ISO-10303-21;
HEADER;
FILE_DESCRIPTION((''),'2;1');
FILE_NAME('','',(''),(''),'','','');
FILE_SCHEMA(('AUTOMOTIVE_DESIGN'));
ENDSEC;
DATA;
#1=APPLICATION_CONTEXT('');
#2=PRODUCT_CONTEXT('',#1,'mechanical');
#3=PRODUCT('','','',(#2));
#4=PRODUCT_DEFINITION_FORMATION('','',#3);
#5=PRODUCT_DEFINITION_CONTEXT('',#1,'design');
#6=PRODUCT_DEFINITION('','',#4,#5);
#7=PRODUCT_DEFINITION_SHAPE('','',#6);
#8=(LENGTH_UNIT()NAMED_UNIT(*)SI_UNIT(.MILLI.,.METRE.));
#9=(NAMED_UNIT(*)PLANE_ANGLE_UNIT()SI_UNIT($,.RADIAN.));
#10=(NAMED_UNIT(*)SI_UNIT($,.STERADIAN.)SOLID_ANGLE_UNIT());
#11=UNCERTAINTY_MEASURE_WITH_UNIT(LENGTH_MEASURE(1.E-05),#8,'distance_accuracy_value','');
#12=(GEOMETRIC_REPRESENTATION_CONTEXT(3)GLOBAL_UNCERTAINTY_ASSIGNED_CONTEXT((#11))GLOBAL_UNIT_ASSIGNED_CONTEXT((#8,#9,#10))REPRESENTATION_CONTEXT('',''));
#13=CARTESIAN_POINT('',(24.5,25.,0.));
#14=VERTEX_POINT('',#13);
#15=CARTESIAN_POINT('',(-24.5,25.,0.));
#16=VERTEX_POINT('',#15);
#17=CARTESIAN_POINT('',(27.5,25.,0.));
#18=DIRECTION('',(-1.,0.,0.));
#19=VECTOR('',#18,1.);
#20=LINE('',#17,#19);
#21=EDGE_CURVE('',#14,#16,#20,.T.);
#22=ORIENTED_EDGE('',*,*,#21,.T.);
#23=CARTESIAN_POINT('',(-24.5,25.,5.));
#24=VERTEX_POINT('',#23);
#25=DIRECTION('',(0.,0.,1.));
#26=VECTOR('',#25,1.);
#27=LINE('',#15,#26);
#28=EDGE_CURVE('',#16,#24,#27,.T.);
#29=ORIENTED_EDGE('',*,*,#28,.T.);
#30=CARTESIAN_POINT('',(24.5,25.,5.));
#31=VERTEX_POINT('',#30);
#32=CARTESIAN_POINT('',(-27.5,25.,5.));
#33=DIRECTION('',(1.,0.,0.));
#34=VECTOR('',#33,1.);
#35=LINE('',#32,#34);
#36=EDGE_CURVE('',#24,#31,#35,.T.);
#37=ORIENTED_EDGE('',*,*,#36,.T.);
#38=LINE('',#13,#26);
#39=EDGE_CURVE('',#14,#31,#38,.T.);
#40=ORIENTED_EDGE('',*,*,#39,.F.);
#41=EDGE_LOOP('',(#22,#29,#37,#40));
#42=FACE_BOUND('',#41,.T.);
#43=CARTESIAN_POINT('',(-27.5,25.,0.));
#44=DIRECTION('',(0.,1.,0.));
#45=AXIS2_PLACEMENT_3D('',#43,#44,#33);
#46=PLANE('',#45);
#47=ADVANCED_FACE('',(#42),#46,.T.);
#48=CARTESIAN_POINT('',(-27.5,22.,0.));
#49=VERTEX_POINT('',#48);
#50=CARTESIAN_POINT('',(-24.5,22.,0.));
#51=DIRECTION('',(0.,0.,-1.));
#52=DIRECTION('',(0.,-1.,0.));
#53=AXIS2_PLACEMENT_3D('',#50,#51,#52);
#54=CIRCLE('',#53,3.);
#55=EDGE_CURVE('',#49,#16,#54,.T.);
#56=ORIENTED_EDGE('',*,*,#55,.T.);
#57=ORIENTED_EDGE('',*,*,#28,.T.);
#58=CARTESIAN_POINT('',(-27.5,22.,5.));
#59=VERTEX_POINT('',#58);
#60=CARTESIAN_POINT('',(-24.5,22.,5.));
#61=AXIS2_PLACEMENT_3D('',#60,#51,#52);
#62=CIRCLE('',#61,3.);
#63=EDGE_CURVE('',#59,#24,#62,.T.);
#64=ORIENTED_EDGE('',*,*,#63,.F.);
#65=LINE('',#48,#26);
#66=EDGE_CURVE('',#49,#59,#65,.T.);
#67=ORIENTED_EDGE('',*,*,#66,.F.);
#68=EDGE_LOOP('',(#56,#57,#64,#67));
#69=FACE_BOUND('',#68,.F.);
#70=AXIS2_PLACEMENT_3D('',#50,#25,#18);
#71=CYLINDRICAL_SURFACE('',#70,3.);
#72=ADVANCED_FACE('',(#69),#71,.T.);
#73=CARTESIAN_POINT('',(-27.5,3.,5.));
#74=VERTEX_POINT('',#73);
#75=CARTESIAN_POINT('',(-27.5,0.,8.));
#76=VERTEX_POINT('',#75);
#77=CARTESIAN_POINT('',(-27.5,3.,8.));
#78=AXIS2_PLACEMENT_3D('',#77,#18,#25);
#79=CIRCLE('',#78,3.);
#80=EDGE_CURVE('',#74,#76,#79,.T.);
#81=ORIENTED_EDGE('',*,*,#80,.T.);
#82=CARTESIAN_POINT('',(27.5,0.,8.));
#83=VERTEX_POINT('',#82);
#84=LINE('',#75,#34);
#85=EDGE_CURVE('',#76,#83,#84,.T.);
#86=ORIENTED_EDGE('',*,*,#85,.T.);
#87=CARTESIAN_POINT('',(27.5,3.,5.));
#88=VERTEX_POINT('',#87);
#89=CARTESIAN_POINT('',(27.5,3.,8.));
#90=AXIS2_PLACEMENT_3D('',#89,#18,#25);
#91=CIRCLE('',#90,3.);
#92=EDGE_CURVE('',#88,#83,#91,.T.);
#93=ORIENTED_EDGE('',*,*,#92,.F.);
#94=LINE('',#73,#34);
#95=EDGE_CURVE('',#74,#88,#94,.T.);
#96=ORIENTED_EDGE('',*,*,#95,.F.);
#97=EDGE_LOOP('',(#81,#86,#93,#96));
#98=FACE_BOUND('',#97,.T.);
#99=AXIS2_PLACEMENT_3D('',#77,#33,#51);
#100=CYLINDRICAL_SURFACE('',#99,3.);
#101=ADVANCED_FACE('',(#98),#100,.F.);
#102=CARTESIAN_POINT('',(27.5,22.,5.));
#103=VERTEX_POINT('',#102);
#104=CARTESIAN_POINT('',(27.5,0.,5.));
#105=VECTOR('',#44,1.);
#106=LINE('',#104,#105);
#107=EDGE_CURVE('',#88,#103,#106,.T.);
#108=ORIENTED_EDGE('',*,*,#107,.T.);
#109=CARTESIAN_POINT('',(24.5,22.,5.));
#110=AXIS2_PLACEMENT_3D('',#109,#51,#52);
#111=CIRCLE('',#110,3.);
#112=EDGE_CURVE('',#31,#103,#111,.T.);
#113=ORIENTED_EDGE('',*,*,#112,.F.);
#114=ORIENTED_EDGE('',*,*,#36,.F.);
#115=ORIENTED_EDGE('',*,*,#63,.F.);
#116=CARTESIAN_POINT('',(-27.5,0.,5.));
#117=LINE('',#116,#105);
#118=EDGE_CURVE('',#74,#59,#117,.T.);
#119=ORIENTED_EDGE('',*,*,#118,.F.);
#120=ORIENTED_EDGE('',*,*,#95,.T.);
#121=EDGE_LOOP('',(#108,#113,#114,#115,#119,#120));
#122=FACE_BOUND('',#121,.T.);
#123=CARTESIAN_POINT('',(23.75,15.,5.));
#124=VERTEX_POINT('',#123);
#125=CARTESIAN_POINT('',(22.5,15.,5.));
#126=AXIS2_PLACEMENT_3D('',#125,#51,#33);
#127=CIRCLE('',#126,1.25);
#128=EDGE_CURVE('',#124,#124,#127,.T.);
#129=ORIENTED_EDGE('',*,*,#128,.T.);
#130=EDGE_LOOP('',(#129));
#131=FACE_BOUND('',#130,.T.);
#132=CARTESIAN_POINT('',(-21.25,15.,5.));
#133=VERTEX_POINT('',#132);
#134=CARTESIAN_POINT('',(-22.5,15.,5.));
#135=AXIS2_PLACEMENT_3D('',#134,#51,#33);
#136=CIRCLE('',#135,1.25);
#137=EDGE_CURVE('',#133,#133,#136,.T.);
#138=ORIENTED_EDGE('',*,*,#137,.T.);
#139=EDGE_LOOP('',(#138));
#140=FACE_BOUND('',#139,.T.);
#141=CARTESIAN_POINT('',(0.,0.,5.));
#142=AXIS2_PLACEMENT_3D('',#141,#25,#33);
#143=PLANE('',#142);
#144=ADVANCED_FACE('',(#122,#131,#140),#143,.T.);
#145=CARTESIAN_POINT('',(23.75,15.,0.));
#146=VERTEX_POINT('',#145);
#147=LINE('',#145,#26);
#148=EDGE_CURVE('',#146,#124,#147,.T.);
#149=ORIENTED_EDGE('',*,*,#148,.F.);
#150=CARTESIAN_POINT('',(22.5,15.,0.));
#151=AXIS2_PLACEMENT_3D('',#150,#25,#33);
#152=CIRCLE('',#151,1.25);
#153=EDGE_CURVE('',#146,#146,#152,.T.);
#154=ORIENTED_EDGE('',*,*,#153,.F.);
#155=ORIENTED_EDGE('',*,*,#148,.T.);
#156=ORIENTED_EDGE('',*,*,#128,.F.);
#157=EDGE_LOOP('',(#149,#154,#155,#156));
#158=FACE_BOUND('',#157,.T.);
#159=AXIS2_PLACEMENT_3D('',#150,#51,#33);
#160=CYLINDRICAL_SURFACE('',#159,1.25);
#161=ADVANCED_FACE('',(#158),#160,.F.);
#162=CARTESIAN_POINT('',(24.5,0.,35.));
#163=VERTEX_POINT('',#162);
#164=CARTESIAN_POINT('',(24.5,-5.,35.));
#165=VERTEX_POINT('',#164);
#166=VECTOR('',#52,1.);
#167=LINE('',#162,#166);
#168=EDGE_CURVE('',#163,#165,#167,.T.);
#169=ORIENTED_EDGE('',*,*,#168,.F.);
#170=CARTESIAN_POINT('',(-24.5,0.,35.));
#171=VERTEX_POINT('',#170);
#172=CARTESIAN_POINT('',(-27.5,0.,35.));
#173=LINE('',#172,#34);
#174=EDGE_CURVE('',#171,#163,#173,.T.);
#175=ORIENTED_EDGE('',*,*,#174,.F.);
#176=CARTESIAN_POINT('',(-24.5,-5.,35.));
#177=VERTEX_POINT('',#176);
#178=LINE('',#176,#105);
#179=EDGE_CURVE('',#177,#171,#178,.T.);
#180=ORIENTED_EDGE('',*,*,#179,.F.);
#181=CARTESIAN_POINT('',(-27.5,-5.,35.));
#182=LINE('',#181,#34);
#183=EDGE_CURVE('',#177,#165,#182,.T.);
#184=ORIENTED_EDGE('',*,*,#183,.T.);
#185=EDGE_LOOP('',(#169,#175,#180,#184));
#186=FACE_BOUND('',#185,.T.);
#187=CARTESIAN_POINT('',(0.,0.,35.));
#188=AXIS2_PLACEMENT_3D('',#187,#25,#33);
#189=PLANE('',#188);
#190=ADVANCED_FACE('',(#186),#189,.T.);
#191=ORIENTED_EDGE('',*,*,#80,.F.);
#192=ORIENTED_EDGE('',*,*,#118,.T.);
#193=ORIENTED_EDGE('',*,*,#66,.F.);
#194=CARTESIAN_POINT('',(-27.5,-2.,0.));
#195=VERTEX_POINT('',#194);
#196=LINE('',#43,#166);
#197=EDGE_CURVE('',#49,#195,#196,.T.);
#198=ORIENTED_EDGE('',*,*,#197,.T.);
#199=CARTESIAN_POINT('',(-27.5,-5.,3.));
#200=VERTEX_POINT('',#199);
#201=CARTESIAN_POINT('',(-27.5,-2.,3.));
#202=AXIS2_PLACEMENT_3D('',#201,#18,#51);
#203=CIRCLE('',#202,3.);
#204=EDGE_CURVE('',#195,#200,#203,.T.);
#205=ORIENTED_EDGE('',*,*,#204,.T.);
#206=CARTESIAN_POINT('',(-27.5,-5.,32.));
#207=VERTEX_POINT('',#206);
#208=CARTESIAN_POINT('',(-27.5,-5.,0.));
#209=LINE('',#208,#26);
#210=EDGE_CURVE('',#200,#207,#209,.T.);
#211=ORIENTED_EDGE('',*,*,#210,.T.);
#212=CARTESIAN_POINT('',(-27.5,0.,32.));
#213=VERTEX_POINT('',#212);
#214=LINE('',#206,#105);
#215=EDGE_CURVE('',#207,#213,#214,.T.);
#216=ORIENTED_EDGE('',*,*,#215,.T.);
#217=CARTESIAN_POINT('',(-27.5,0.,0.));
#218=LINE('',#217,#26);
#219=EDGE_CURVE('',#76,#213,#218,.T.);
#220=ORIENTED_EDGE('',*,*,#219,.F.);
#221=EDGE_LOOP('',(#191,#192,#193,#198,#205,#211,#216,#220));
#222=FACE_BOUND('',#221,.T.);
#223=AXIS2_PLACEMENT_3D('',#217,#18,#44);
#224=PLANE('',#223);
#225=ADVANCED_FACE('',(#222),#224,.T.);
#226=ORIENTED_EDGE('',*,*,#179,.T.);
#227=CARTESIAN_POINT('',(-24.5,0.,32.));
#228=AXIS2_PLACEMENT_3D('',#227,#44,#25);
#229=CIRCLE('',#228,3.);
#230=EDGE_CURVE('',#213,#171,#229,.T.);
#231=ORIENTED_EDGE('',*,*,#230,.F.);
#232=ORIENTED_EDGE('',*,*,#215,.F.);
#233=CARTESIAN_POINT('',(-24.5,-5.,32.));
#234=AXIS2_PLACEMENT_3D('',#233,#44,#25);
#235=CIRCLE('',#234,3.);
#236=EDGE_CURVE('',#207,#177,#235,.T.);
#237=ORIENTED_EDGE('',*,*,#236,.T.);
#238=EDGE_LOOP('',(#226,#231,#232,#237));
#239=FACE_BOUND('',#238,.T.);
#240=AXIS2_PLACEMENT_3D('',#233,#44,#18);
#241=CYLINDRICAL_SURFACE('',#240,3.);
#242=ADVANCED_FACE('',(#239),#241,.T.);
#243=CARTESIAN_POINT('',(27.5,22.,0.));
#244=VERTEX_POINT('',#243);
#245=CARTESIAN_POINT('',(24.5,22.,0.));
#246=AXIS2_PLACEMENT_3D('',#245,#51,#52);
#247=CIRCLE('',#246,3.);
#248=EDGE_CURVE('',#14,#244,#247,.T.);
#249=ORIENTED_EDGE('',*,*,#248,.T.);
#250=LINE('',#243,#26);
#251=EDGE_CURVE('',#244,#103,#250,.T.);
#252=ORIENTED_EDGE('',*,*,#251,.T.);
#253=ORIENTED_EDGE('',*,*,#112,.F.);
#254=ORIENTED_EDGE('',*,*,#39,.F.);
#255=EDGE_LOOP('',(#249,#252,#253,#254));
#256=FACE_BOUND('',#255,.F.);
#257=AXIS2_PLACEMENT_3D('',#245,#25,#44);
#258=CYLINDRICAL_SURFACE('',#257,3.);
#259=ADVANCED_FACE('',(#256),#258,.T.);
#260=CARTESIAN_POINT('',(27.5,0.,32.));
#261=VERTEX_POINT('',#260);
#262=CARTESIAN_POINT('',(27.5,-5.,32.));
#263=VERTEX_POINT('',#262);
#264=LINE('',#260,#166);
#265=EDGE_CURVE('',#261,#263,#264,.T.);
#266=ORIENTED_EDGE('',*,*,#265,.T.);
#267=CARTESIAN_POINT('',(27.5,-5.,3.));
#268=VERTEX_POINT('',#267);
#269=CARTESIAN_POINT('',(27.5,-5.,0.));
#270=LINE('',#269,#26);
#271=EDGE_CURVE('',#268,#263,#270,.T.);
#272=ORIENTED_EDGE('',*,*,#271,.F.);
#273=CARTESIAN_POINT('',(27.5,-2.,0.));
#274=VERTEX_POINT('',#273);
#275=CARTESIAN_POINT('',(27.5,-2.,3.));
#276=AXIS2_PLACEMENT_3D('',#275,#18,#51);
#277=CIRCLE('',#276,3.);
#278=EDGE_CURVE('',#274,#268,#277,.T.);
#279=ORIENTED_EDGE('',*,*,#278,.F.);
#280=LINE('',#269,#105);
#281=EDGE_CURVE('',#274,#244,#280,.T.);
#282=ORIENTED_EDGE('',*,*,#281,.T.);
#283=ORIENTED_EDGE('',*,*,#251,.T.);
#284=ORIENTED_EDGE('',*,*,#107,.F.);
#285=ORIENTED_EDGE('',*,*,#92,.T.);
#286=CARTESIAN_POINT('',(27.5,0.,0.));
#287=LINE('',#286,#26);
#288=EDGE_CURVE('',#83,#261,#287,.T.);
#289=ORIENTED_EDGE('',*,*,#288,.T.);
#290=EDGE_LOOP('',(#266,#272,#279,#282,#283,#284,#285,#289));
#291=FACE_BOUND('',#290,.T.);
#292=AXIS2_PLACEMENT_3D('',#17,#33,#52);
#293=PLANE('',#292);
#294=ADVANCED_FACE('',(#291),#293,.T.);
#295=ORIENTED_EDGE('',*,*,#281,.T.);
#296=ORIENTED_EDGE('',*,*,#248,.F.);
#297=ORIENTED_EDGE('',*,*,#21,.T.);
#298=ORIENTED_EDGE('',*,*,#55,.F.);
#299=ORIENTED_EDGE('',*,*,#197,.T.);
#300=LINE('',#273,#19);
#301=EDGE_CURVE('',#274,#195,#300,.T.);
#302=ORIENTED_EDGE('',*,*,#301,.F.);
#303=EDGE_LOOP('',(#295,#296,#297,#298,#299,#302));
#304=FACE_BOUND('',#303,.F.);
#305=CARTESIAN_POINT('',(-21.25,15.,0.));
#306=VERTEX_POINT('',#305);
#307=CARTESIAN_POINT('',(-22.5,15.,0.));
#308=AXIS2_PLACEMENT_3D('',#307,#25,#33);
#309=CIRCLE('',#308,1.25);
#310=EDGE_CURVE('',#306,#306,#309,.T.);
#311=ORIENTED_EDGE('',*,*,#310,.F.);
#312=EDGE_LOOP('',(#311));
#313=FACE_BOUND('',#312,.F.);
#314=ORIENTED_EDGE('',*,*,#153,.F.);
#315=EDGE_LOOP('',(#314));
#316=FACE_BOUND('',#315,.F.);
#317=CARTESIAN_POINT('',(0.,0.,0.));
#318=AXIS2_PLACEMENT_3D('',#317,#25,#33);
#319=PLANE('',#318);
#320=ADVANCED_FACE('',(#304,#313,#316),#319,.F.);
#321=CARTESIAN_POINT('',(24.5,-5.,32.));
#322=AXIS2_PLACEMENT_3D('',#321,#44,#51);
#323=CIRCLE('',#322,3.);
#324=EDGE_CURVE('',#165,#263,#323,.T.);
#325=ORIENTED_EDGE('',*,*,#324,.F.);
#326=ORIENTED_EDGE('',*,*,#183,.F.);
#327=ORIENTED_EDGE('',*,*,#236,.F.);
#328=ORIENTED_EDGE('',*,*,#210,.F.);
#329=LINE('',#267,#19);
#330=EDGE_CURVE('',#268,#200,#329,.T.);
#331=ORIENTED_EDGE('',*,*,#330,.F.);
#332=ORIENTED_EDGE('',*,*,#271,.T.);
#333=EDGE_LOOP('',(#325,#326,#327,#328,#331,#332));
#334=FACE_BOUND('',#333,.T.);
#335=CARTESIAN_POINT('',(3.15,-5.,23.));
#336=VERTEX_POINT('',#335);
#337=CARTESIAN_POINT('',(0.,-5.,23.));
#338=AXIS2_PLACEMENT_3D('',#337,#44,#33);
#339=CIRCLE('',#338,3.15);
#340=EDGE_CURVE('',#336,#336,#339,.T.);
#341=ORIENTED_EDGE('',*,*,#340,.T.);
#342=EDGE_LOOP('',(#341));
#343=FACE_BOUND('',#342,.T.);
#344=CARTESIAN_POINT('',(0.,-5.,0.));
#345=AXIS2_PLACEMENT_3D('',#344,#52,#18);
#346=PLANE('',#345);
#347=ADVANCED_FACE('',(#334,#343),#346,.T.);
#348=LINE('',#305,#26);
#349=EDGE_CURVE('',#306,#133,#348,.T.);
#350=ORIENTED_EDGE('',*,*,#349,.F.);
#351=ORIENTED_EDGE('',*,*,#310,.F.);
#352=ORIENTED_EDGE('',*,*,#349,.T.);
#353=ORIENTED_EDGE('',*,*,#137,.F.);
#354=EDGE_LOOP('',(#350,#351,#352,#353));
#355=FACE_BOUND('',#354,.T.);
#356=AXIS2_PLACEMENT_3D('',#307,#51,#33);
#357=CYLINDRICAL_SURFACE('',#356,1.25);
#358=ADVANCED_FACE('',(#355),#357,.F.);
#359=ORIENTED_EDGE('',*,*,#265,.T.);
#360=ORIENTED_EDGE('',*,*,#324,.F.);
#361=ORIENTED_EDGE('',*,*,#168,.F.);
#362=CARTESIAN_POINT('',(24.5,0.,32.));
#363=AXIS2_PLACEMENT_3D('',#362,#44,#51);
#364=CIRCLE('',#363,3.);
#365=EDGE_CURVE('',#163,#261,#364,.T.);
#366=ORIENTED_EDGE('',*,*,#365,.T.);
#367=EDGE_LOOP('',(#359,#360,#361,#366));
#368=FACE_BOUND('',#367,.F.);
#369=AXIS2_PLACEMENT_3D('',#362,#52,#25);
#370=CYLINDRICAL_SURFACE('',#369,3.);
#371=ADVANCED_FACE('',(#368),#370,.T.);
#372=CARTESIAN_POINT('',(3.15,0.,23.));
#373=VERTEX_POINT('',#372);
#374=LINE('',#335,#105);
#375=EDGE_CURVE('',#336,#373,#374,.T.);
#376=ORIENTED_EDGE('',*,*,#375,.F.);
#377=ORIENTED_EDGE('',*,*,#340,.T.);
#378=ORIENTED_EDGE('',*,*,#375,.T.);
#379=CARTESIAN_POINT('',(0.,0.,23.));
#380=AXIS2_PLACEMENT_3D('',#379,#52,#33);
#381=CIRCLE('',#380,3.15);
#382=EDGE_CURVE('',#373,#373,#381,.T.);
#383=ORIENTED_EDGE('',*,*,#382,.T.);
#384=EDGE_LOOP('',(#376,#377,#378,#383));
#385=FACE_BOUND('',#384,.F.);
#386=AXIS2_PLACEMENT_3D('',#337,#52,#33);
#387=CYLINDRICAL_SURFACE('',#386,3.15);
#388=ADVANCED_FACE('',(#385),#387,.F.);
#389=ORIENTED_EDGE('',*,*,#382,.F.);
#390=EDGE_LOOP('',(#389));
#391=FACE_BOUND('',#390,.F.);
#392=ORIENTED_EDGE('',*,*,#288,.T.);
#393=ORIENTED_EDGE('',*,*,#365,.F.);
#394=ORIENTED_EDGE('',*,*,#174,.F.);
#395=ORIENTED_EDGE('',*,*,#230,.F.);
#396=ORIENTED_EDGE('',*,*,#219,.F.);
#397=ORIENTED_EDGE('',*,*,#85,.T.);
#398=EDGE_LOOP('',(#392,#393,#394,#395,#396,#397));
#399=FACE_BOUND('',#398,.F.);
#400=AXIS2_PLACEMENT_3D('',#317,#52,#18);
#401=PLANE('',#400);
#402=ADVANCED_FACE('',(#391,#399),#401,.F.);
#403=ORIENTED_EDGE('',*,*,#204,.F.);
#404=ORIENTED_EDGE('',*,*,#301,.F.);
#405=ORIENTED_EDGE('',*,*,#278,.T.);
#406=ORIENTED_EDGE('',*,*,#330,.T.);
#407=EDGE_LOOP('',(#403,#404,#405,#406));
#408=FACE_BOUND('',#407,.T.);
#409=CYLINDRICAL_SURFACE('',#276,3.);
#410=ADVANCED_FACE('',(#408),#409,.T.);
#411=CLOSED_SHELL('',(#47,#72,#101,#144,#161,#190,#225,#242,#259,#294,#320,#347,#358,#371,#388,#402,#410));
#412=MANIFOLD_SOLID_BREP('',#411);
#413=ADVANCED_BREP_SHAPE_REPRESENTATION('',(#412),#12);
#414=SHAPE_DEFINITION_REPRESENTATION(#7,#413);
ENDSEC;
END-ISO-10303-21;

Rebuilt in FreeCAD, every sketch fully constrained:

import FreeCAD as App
import Part
import Sketcher

V = App.Vector


def edges_at(feature, points):
    """Names of the edges that pass closest to the given points."""
    edges = feature.Shape.Edges
    near = lambda p: min(range(len(edges)), key=lambda i: edges[i].distToShape(Part.Vertex(*p))[0])
    return sorted({f"Edge{near(p) + 1}" for p in points})

doc = App.newDocument("Part")
body = doc.addObject("PartDesign::Body", "Body")

sketch1 = body.newObject("Sketcher::SketchObject", "Sketch")
sketch1.AttachmentSupport = (doc.getObject("XY_Plane"), [""])
sketch1.MapMode = "FlatFace"
sketch1.addGeometry(Part.LineSegment(V(-27.5, 25, 0), V(-27.5, 0, 0)), False)
sketch1.addGeometry(Part.LineSegment(V(-27.5, 0, 0), V(27.5, 0, 0)), False)
sketch1.addGeometry(Part.LineSegment(V(27.5, 0, 0), V(27.5, 25, 0)), False)
sketch1.addGeometry(Part.LineSegment(V(27.5, 25, 0), V(-27.5, 25, 0)), False)
sketch1.addGeometry(Part.Circle(V(-22.5, 15, 0), V(0, 0, 1), 1.2), False)
sketch1.addGeometry(Part.Circle(V(22.5, 15, 0), V(0, 0, 1), 1.2), False)
sketch1.addConstraint(Sketcher.Constraint("Coincident", 0, 2, 1, 1))
sketch1.addConstraint(Sketcher.Constraint("Coincident", 1, 2, 2, 1))
sketch1.addConstraint(Sketcher.Constraint("Coincident", 2, 2, 3, 1))
sketch1.addConstraint(Sketcher.Constraint("Coincident", 3, 2, 0, 1))
sketch1.addConstraint(Sketcher.Constraint("Vertical", 0))
sketch1.addConstraint(Sketcher.Constraint("Horizontal", 1))
sketch1.addConstraint(Sketcher.Constraint("Vertical", 2))
sketch1.addConstraint(Sketcher.Constraint("Horizontal", 3))
sketch1.addConstraint(Sketcher.Constraint("Equal", 4, 5))
sketch1.addConstraint(Sketcher.Constraint("Symmetric", 0, 2, 1, 2, -1, 1))
sketch1.addConstraint(Sketcher.Constraint("Symmetric", 4, 3, 5, 3, -2))
sketch1.addConstraint(Sketcher.Constraint("Diameter", 4, 2.5))
sketch1.addConstraint(Sketcher.Constraint("DistanceX", 1, 1, 1, 2, 55.0))
sketch1.addConstraint(Sketcher.Constraint("DistanceY", 0, 2, 0, 1, 25.0))
sketch1.addConstraint(Sketcher.Constraint("DistanceX", 0, 2, 4, 3, 5.0))
sketch1.addConstraint(Sketcher.Constraint("DistanceY", 5, 3, 2, 2, 10.0))
pad1 = body.newObject("PartDesign::Pad", "Pad")
pad1.Profile = sketch1
pad1.Length = 5

sketch2 = body.newObject("Sketcher::SketchObject", "Sketch001")
sketch2.AttachmentSupport = (doc.getObject("XY_Plane"), [""])
sketch2.MapMode = "FlatFace"
sketch2.addGeometry(Part.LineSegment(V(-28, 0, 0), V(-28, -5, 0)), False)
sketch2.addGeometry(Part.LineSegment(V(-28, -5, 0), V(28, -5, 0)), False)
sketch2.addGeometry(Part.LineSegment(V(28, -5, 0), V(28, 0, 0)), False)
sketch2.addGeometry(Part.LineSegment(V(28, 0, 0), V(-28, 0, 0)), False)
sketch2.addConstraint(Sketcher.Constraint("Coincident", 0, 2, 1, 1))
sketch2.addConstraint(Sketcher.Constraint("Coincident", 1, 2, 2, 1))
sketch2.addConstraint(Sketcher.Constraint("Coincident", 2, 2, 3, 1))
sketch2.addConstraint(Sketcher.Constraint("Coincident", 3, 2, 0, 1))
sketch2.addConstraint(Sketcher.Constraint("Vertical", 0))
sketch2.addConstraint(Sketcher.Constraint("Horizontal", 1))
sketch2.addConstraint(Sketcher.Constraint("Vertical", 2))
sketch2.addConstraint(Sketcher.Constraint("Horizontal", 3))
sketch2.addConstraint(Sketcher.Constraint("Symmetric", 2, 2, 3, 2, -1, 1))
sketch2.addConstraint(Sketcher.Constraint("DistanceX", 1, 1, 1, 2, 55.0))
sketch2.addConstraint(Sketcher.Constraint("DistanceY", 0, 2, 0, 1, 5.0))
pad2 = body.newObject("PartDesign::Pad", "Pad001")
pad2.Profile = sketch2
pad2.Length = 35

sketch3 = body.newObject("Sketcher::SketchObject", "Sketch002")
sketch3.AttachmentSupport = (doc.getObject("XZ_Plane"), [""])
sketch3.MapMode = "FlatFace"
sketch3.AttachmentOffset = App.Placement(V(0, 0, 5), App.Rotation())
sketch3.addGeometry(Part.Circle(V(0, 23, 0), V(0, 0, 1), 3.1), False)
sketch3.addConstraint(Sketcher.Constraint("PointOnObject", 0, 3, -2))
sketch3.addConstraint(Sketcher.Constraint("Diameter", 0, 6.3))
sketch3.addConstraint(Sketcher.Constraint("DistanceY", -1, 1, 0, 3, 23.0))
pocket1 = body.newObject("PartDesign::Pocket", "Pocket")
pocket1.Profile = sketch3
pocket1.Length = 30
doc.recompute()

fillet = body.newObject("PartDesign::Fillet", "Fillet")
fillet.Base = (pocket1, edges_at(pocket1, [(0, -5, 0), (0, 0, 5)]))
fillet.Radius = 3
doc.recompute()

fillet2 = body.newObject("PartDesign::Fillet", "Fillet001")
fillet2.Base = (fillet, edges_at(fillet, [
    (27.5, -2.5, 35),
    (-27.5, -2.5, 35),
    (27.5, 25, 2.5),
    (-27.5, 25, 2.5),
]))
fillet2.Radius = 3

doc.recompute()
